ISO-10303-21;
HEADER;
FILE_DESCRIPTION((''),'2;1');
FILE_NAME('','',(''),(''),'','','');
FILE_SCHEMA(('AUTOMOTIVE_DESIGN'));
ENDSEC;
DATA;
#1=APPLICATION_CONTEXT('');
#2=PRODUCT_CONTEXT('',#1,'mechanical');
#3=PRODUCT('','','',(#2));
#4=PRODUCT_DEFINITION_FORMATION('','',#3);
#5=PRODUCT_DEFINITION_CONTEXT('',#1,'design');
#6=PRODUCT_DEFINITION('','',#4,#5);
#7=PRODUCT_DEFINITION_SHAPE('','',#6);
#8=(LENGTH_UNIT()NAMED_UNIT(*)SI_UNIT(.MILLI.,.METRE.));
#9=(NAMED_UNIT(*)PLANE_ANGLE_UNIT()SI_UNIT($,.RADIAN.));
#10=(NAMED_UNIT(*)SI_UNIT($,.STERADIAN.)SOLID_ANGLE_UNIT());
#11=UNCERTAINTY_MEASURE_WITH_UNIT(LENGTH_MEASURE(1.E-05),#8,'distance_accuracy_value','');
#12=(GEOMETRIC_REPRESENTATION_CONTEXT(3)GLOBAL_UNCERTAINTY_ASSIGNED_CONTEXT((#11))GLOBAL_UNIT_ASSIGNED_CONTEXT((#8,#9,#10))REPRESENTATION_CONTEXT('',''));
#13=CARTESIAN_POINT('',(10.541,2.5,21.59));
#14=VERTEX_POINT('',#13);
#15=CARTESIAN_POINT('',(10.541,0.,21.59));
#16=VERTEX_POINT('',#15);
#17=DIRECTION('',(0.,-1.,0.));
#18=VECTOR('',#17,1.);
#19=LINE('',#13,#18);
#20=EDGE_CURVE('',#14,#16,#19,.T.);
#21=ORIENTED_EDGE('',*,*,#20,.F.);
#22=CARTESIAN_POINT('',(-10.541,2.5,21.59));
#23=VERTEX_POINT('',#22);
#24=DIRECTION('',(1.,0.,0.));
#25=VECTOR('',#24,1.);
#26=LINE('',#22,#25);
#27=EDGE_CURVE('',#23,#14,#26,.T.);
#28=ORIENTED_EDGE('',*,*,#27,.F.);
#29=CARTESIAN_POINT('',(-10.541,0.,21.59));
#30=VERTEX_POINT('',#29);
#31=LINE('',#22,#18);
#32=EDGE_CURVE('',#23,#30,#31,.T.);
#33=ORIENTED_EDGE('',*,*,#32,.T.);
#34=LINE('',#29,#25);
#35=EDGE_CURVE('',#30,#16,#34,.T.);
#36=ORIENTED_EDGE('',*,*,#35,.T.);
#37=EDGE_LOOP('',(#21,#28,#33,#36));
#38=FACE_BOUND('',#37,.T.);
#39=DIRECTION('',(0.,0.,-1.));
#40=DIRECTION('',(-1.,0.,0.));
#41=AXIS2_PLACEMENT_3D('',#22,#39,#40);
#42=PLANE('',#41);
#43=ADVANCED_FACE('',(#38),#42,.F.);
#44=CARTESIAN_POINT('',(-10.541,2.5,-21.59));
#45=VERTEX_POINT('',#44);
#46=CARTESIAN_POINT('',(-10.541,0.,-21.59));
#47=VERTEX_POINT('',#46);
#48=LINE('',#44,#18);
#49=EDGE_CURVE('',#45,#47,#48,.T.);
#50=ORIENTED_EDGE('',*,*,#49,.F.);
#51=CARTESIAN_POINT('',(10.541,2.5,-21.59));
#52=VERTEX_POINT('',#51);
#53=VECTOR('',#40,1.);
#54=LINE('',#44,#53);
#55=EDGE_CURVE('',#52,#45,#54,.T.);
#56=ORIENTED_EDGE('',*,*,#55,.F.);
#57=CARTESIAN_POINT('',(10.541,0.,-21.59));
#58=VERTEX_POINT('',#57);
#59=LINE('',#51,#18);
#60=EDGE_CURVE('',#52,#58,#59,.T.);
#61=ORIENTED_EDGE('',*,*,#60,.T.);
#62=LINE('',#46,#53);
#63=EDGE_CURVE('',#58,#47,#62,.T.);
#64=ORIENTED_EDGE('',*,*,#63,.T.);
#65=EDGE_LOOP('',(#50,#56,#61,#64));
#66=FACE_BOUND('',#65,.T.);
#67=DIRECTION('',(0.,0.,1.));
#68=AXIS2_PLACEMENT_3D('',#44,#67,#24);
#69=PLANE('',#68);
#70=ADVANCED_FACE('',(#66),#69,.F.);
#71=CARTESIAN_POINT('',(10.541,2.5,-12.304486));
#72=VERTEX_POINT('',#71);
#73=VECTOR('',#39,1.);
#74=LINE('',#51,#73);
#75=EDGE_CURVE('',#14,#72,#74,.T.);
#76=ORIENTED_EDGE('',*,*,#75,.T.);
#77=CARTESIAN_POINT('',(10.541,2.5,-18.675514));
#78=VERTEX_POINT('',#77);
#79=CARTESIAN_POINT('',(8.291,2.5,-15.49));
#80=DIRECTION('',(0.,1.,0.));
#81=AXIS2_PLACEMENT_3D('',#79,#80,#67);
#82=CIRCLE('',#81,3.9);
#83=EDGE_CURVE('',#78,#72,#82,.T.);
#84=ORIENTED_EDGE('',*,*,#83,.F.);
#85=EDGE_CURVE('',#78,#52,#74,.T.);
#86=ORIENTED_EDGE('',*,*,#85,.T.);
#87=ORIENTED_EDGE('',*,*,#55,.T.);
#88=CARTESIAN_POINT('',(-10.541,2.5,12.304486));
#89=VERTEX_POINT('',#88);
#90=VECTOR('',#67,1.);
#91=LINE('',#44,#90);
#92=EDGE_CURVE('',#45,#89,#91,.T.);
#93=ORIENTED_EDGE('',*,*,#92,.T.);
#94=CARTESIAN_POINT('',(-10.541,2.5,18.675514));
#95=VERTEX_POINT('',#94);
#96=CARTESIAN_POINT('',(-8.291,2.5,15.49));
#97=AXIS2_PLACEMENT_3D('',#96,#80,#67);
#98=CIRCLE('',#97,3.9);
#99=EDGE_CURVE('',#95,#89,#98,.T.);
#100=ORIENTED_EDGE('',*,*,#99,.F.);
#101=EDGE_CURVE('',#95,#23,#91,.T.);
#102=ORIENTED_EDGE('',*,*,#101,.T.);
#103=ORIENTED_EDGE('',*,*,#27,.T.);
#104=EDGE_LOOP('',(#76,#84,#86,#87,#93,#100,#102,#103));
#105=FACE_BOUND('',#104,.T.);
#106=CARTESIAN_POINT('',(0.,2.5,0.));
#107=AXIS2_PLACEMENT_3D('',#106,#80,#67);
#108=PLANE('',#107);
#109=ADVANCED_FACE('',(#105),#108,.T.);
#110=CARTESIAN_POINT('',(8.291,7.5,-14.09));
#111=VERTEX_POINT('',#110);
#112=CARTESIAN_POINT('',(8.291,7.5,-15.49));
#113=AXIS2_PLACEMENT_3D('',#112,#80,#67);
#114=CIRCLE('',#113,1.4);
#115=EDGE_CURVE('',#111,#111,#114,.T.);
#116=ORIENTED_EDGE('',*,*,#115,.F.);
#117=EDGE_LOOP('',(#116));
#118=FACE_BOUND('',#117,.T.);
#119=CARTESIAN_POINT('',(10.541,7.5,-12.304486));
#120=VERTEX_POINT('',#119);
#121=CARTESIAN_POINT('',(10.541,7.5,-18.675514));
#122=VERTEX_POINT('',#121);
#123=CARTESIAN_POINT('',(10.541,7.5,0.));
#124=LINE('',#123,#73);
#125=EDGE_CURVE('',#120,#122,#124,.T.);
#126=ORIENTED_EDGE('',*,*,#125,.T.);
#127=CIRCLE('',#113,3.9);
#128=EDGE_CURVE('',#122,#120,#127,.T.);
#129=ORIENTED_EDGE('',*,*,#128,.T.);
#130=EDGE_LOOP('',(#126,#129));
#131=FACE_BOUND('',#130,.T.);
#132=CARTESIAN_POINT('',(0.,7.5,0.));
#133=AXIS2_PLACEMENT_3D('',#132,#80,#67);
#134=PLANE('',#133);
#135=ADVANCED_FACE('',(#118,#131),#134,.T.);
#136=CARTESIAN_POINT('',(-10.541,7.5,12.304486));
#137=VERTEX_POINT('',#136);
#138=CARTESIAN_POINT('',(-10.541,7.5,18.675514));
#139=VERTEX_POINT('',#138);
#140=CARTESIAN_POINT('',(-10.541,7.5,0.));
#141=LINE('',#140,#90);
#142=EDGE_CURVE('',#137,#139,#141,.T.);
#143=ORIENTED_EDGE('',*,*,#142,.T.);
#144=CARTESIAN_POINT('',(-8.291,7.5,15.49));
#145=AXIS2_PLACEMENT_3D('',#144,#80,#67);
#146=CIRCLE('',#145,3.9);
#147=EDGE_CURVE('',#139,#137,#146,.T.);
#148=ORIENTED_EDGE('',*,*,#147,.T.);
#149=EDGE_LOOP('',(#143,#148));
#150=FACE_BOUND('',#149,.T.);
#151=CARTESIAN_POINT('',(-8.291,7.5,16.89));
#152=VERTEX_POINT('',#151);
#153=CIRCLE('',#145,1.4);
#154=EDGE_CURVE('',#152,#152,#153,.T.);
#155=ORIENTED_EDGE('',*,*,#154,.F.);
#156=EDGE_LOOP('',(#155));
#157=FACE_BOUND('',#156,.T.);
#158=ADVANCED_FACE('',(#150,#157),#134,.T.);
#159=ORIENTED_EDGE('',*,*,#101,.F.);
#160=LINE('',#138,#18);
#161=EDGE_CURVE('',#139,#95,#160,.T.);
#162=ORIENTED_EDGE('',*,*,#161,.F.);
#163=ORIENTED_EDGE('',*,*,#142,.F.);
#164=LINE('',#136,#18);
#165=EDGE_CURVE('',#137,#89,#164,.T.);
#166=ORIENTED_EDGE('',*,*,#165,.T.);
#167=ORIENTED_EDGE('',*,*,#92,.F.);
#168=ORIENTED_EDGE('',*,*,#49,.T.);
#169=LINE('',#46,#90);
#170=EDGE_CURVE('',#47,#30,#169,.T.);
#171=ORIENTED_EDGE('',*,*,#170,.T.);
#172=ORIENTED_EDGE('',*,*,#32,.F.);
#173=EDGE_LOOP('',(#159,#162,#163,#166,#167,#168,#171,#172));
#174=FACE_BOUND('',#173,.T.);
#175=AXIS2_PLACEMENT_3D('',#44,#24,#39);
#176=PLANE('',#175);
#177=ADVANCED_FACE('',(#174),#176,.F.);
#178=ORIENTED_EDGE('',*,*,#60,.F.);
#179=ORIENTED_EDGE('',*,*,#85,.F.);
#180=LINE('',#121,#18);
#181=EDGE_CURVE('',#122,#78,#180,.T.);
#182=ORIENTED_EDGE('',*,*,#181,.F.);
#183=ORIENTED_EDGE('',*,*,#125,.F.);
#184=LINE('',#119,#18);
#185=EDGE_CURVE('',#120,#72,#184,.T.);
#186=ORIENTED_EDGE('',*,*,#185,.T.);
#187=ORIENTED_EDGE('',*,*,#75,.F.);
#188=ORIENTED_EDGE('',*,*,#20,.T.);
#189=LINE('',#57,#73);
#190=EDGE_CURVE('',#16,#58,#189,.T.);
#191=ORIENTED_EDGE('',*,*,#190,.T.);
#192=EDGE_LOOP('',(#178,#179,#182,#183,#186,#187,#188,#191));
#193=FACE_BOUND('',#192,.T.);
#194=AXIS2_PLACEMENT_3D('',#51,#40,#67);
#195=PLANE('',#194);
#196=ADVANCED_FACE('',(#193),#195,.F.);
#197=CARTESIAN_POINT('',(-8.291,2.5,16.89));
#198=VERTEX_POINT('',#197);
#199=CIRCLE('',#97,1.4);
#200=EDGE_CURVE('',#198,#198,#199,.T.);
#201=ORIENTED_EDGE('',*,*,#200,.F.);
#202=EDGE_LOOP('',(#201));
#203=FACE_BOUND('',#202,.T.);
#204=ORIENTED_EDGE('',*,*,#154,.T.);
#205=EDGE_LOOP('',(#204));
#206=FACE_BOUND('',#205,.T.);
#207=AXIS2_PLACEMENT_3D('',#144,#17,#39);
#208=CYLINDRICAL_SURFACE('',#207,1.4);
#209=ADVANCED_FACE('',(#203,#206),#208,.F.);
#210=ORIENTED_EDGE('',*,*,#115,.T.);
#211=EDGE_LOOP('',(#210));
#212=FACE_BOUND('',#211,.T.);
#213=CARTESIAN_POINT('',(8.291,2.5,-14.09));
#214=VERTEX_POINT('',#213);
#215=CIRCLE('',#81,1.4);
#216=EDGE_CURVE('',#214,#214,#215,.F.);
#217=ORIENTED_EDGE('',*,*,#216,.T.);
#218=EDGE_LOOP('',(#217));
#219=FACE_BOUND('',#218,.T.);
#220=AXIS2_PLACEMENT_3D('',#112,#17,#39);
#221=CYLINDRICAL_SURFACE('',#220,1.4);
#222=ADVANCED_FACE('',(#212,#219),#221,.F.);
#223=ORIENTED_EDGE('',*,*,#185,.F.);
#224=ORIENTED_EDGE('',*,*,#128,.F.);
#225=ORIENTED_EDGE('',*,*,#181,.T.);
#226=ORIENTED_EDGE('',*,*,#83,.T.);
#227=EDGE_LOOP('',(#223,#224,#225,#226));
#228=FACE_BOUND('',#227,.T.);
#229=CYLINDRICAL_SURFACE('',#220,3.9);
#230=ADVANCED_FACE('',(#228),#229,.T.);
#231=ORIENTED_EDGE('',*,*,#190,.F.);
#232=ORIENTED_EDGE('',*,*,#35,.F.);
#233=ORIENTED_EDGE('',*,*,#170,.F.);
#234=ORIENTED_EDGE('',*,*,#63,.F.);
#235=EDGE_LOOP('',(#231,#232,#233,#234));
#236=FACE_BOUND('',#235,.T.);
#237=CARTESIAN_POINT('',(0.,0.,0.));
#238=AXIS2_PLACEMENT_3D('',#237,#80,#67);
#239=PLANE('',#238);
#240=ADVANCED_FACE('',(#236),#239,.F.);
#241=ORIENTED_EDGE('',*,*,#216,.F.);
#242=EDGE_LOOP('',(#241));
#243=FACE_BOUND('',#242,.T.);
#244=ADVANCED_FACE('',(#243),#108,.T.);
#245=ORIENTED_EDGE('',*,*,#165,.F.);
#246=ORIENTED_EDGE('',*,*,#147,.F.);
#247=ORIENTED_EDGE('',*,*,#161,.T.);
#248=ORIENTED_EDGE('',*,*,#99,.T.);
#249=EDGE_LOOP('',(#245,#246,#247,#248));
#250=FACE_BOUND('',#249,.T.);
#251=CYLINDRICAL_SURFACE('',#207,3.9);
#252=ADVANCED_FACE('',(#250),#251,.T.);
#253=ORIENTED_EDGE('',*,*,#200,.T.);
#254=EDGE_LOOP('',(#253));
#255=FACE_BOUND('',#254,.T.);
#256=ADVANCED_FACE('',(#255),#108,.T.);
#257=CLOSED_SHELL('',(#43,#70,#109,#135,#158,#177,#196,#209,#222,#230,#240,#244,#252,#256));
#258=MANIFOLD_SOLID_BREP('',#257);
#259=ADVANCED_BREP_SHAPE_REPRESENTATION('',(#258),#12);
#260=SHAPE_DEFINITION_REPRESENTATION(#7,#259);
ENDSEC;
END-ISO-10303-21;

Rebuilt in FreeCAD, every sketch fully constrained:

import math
import FreeCAD as App
import Part
import Sketcher

doc = App.newDocument("Part")
body = doc.addObject("PartDesign::Body", "Body")

# Sketch on XZ plane
sketch1 = body.newObject("Sketcher::SketchObject", "Sketch")
sketch1.AttachmentSupport = (doc.getObject("XZ_Plane"), [""])
sketch1.MapMode = "FlatFace"
sketch1.addGeometry([
    Part.LineSegment(App.Vector(-11, -22, 0), App.Vector(-11, 22, 0)),
    Part.LineSegment(App.Vector(-11, 22, 0), App.Vector(11, 22, 0)),
    Part.LineSegment(App.Vector(11, 22, 0), App.Vector(11, -22, 0)),
    Part.LineSegment(App.Vector(11, -22, 0), App.Vector(-11, -22, 0)),
], False)
sketch1.addConstraint([
    Sketcher.Constraint("Coincident", 0, 2, 1, 1),
    Sketcher.Constraint("Coincident", 1, 2, 2, 1),
    Sketcher.Constraint("Coincident", 2, 2, 3, 1),
    Sketcher.Constraint("Coincident", 3, 2, 0, 1),
    Sketcher.Constraint("Vertical", 0),
    Sketcher.Constraint("Horizontal", 1),
    Sketcher.Constraint("Vertical", 2),
    Sketcher.Constraint("Horizontal", 3),
    Sketcher.Constraint("Symmetric", 0, 2, 2, 2, -1, 1),
    Sketcher.Constraint("DistanceY", 0, 1, 0, 2, 43.18),
    Sketcher.Constraint("DistanceX", 1, 1, 1, 2, 21.082),
])
pad1 = body.newObject("PartDesign::Pad", "Pad")
pad1.Profile = sketch1
pad1.Length = 2.5
pad1.Reversed = True

# Sketch on XZ plane
sketch2 = body.newObject("Sketcher::SketchObject", "Sketch001")
sketch2.AttachmentSupport = (doc.getObject("XZ_Plane"), [""])
sketch2.MapMode = "FlatFace"
sketch2.AttachmentOffset = App.Placement(App.Vector(0, 0, -2.5), App.Rotation())
sketch2.addGeometry([
    Part.LineSegment(App.Vector(10.5, -12.3, 0), App.Vector(10.5, -18.7, 0)),  # 0
    Part.ArcOfCircle(Part.Circle(App.Vector(8.3, -15.5, 0), App.Vector(0, 0, 1), 3.9), math.radians(55), math.radians(305)),  # 1
    Part.Circle(App.Vector(8.3, -15.5, 0), App.Vector(0, 0, 1), 1.4),  # 2
    Part.ArcOfCircle(Part.Circle(App.Vector(-8.3, 15.5, 0), App.Vector(0, 0, 1), 3.9), math.radians(-125), math.radians(125)),  # 3
    Part.LineSegment(App.Vector(-10.5, 12.3, 0), App.Vector(-10.5, 18.7, 0)),  # 4
    Part.Circle(App.Vector(-8.3, 15.5, 0), App.Vector(0, 0, 1), 1.4),  # 5
], False)
sketch2.addConstraint([
    Sketcher.Constraint("Coincident", 0, 1, 1, 1),
    Sketcher.Constraint("Coincident", 1, 2, 0, 2),
    Sketcher.Constraint("Coincident", 3, 1, 4, 1),
    Sketcher.Constraint("Coincident", 4, 2, 3, 2),
    Sketcher.Constraint("Vertical", 0),
    Sketcher.Constraint("Vertical", 4),
    Sketcher.Constraint("Coincident", 2, 3, 1, 3),
    Sketcher.Constraint("Coincident", 5, 3, 3, 3),
    Sketcher.Constraint("Equal", 1, 3),
    Sketcher.Constraint("Equal", 2, 5),
    Sketcher.Constraint("Symmetric", 1, 3, 3, 3, -1, 1),
    Sketcher.Constraint("Equal", 0, 4),
    Sketcher.Constraint("Diameter", 2, 2.8),
    Sketcher.Constraint("Radius", 1, 3.9),
    Sketcher.Constraint("DistanceY", 1, 3, -1, 1, 15.49),
    Sketcher.Constraint("DistanceX", 1, 3, 0, 1, 2.25),
    Sketcher.Constraint("DistanceX", -1, 1, 1, 3, 8.291),
])
pad2 = body.newObject("PartDesign::Pad", "Pad001")
pad2.Profile = sketch2
pad2.Length = 5
pad2.Reversed = True

doc.recompute()
